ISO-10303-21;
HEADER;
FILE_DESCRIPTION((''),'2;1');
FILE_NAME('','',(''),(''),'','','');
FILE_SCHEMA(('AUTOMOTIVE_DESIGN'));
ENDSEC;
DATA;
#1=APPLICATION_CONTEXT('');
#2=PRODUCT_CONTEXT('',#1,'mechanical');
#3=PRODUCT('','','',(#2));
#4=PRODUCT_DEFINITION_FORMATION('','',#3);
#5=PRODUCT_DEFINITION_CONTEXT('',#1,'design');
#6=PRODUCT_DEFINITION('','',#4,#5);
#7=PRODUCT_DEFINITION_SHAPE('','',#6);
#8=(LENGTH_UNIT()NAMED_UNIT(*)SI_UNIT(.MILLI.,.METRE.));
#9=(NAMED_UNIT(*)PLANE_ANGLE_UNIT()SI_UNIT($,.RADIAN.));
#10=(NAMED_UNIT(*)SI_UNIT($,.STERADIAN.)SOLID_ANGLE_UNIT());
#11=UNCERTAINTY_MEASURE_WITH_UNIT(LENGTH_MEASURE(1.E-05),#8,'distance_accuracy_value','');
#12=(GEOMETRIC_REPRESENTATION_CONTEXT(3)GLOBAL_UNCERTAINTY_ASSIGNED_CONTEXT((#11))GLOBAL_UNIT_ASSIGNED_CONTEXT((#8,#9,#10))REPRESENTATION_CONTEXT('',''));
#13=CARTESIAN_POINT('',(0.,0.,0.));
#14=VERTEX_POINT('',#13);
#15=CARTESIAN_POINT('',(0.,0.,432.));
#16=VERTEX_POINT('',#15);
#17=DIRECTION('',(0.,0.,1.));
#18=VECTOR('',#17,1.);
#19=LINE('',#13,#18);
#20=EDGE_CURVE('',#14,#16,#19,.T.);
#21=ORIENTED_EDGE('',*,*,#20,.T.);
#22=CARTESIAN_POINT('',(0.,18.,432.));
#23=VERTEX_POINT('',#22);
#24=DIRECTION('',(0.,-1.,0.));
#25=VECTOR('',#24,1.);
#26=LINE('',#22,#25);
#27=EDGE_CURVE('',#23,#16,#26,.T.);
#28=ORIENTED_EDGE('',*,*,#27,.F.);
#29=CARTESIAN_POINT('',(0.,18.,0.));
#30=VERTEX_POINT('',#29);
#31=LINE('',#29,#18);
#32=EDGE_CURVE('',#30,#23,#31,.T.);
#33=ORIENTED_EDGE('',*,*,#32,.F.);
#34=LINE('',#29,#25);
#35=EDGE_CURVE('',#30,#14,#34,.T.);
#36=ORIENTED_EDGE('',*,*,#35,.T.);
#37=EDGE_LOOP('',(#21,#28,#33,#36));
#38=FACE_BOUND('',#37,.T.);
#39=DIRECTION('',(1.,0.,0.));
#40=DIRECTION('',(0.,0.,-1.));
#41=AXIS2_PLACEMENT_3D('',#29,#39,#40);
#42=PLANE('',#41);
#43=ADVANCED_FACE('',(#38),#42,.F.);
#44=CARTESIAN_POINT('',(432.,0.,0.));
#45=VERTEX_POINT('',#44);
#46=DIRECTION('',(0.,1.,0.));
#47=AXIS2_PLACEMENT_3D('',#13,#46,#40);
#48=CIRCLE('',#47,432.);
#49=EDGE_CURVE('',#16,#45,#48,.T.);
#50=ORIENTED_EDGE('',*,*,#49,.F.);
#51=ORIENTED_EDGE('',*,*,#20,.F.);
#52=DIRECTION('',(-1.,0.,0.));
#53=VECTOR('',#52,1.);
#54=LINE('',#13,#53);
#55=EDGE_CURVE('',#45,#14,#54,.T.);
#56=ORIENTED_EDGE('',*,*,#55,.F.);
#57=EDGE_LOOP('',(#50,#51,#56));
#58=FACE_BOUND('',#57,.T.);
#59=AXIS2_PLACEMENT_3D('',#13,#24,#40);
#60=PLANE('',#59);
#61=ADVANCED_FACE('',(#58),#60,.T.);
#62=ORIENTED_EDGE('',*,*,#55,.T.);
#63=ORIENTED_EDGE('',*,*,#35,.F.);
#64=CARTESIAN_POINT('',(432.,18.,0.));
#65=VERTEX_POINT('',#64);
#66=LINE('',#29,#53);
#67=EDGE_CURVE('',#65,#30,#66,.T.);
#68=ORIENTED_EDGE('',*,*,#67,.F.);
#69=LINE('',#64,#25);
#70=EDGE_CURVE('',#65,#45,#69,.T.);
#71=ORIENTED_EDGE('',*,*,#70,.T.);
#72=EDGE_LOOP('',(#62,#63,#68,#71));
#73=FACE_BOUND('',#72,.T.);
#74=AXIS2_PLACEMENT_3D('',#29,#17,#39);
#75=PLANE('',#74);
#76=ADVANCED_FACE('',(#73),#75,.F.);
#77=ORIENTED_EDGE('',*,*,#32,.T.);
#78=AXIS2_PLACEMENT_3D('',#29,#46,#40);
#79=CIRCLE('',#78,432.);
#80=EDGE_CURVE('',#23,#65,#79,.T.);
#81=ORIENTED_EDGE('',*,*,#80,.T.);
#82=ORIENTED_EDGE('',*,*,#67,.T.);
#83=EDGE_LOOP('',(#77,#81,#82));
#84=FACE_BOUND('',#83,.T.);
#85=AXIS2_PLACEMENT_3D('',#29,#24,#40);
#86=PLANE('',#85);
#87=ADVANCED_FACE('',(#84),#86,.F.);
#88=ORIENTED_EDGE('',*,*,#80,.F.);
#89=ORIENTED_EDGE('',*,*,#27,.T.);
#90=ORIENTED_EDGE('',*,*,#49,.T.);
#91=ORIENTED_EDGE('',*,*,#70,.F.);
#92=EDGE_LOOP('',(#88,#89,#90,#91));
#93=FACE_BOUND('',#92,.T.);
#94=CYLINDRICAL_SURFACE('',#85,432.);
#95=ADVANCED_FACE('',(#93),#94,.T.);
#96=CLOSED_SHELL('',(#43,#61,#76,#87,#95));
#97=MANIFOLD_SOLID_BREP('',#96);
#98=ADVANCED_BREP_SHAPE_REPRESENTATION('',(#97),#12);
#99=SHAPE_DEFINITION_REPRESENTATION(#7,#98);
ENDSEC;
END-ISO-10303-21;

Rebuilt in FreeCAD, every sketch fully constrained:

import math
import FreeCAD as App
import Part
import Sketcher

V = App.Vector

doc = App.newDocument("Part")
body = doc.addObject("PartDesign::Body", "Body")

# Sketch on XZ plane
sketch1 = body.newObject("Sketcher::SketchObject", "Sketch")
sketch1.AttachmentSupport = (doc.getObject("XZ_Plane"), [""])
sketch1.MapMode = "FlatFace"
sketch1.addGeometry([
    Part.LineSegment(V(0, 0, 0), V(0, 432, 0)),
    Part.ArcOfCircle(Part.Circle(V(0, 0, 0), V(0, 0, 1), 432), math.radians(0), math.radians(90)),
    Part.LineSegment(V(432, 0, 0), V(0, 0, 0)),
], False)
sketch1.addConstraint([
    Sketcher.Constraint("Coincident", 0, 2, 1, 2),
    Sketcher.Constraint("Coincident", 1, 1, 2, 1),
    Sketcher.Constraint("Coincident", 2, 2, 0, 1),
    Sketcher.Constraint("Vertical", 0),
    Sketcher.Constraint("Horizontal", 2),
    Sketcher.Constraint("Coincident", 1, 3, -1, 1),
    Sketcher.Constraint("Coincident", 2, 2, -1, 1),
    Sketcher.Constraint("Radius", 1, 432.0),
])
pad1 = body.newObject("PartDesign::Pad", "Pad")
pad1.Profile = sketch1
pad1.Length = 18
pad1.Reversed = True

doc.recompute()
